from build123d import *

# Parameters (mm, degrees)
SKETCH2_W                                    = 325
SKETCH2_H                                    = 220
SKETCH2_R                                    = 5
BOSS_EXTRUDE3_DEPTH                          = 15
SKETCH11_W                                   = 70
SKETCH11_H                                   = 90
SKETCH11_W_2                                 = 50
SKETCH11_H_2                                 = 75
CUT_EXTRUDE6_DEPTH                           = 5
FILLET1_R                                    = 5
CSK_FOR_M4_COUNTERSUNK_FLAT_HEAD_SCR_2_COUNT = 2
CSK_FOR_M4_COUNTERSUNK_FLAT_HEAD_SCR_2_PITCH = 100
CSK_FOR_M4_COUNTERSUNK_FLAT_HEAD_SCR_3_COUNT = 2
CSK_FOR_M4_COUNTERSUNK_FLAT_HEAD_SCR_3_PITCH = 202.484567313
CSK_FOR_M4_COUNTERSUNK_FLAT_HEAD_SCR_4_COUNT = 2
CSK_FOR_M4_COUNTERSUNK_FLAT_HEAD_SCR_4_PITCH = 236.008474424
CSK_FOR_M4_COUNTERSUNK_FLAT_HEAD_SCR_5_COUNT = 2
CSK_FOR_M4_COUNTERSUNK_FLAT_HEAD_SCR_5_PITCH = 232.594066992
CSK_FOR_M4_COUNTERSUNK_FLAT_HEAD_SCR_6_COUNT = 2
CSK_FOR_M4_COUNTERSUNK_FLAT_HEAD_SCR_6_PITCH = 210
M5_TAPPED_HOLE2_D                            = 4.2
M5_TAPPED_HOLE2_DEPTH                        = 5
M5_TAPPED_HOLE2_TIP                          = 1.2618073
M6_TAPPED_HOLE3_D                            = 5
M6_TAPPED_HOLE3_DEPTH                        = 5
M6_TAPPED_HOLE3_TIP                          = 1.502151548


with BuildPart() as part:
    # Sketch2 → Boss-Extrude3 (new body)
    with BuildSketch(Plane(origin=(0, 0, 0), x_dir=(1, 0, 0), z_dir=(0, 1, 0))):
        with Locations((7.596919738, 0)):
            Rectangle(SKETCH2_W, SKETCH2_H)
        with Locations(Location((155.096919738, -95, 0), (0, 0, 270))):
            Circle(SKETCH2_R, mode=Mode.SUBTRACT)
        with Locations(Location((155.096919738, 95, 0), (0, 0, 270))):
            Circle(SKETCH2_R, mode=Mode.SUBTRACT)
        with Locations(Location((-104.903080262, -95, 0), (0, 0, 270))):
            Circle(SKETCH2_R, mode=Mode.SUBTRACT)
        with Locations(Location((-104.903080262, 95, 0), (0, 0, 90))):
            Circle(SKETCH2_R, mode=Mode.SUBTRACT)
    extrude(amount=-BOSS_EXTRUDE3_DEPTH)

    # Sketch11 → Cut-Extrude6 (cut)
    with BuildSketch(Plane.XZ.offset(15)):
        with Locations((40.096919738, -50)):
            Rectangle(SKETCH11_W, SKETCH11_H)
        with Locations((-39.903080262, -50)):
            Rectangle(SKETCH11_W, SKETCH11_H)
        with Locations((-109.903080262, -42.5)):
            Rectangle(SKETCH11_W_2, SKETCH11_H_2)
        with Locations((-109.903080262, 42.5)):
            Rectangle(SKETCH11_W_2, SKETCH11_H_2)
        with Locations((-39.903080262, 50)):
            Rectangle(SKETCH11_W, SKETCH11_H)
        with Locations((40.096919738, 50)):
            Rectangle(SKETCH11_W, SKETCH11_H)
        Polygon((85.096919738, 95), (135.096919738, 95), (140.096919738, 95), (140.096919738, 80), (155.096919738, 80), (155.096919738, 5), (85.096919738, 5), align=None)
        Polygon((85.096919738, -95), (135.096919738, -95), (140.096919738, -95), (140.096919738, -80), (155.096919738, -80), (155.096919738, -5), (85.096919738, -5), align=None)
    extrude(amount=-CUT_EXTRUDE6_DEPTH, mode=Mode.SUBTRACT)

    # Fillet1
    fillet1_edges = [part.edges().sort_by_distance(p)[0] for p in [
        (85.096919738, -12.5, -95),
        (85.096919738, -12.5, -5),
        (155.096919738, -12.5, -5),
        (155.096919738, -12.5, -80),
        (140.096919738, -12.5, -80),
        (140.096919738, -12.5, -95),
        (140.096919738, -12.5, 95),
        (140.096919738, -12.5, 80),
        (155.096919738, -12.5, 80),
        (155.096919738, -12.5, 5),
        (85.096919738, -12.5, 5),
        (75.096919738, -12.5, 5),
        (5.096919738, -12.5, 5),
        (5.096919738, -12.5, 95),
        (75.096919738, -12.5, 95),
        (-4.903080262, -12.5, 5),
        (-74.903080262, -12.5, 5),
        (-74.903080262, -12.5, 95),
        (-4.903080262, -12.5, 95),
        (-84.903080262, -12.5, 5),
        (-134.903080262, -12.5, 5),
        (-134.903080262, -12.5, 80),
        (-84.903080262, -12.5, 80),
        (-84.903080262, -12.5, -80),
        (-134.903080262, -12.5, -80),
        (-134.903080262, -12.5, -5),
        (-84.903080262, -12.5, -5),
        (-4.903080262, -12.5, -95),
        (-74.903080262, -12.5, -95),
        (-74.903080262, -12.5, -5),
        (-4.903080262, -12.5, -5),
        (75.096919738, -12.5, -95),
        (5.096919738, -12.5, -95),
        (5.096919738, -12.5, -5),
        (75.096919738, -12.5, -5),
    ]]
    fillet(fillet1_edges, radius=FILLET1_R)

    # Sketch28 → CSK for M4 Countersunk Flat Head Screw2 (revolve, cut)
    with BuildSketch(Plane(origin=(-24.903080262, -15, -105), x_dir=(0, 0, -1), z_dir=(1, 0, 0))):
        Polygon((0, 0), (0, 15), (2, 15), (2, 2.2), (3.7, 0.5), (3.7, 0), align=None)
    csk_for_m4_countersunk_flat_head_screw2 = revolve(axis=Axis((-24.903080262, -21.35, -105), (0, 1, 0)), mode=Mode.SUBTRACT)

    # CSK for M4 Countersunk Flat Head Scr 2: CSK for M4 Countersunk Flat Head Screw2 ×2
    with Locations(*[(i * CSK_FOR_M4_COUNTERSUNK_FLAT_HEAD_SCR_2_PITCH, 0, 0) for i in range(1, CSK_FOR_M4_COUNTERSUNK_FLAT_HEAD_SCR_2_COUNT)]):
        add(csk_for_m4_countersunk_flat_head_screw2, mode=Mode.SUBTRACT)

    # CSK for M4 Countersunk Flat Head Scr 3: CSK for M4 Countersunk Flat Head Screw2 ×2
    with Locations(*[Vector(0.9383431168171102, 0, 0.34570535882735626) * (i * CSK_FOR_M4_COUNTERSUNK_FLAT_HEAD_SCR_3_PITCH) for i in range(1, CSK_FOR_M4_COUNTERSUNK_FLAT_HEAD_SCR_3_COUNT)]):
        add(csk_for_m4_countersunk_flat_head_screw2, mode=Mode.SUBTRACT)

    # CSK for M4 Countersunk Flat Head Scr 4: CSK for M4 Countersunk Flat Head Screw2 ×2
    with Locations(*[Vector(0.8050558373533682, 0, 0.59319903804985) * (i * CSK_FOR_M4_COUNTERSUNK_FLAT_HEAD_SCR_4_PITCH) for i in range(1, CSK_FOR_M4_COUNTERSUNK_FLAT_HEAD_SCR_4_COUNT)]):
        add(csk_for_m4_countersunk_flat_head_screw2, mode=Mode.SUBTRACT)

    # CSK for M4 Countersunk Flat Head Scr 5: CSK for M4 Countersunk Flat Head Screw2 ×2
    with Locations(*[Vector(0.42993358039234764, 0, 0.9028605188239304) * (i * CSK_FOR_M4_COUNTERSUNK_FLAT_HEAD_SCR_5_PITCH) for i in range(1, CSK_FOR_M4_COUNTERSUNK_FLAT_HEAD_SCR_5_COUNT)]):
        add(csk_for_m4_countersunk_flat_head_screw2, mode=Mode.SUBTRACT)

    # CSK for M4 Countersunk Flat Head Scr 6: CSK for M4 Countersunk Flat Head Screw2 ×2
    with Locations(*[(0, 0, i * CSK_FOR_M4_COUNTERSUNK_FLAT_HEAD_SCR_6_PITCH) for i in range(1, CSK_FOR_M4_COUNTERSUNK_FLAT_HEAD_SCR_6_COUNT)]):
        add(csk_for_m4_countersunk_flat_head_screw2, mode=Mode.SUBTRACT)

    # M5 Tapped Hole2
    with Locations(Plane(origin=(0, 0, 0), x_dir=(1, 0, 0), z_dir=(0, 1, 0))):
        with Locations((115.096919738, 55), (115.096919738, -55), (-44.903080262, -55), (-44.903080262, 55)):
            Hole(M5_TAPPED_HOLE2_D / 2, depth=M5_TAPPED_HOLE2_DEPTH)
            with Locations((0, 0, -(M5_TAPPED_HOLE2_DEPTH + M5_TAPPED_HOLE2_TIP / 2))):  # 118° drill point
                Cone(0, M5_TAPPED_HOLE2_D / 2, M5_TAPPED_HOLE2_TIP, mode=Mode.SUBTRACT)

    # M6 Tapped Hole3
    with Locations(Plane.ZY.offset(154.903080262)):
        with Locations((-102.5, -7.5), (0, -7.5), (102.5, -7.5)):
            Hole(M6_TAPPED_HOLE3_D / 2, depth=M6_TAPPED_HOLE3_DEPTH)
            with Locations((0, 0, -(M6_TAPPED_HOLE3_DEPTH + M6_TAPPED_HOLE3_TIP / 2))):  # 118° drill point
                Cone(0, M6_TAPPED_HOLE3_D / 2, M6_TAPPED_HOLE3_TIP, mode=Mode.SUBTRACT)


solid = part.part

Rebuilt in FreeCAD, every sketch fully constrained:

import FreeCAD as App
import Part
import Sketcher
from FreeCAD import Vector
Q = App.Units.Quantity


def edges_at(feature, points):
    """Names of the edges that pass closest to the given points."""
    edges = feature.Shape.Edges
    near = lambda p: min(range(len(edges)), key=lambda i: edges[i].distToShape(Part.Vertex(*p))[0])
    return sorted({f"Edge{near(p) + 1}" for p in points})


def add_polygon(sketch, points):
    """Adds a closed chain of lines whose ends are joined by coincident constraints."""
    first, n = sketch.GeometryCount, len(points)
    for a, b in zip(points, points[1:] + points[:1]):
        sketch.addGeometry(Part.LineSegment(App.Vector(*a, 0), App.Vector(*b, 0)), False)
    for i in range(n):
        sketch.addConstraint(Sketcher.Constraint("Coincident", first + i, 2, first + (i + 1) % n, 1))

doc = App.newDocument("Part")
body = doc.addObject("PartDesign::Body", "Body")

# Sketch on XZ plane
sketch1 = body.newObject("Sketcher::SketchObject", "Sketch")
sketch1.AttachmentSupport = (doc.getObject("XZ_Plane"), [""])
sketch1.MapMode = "FlatFace"
add_polygon(sketch1, [(-155, -110), (-155, 110), (170, 110), (170, -110)])  # lines 0-3
sketch1.addGeometry(Part.Circle(Vector(-105, 95, 0), Vector(0, 0, 1), 5), False)  # 4
sketch1.addGeometry(Part.Circle(Vector(155, 95, 0), Vector(0, 0, 1), 5), False)  # 5
sketch1.addGeometry(Part.Circle(Vector(-105, -95, 0), Vector(0, 0, 1), 5), False)  # 6
sketch1.addGeometry(Part.Circle(Vector(155, -95, 0), Vector(0, 0, 1), 5), False)  # 7
sketch1.addConstraint(Sketcher.Constraint("Vertical", 0))
sketch1.addConstraint(Sketcher.Constraint("Horizontal", 1))
sketch1.addConstraint(Sketcher.Constraint("Vertical", 2))
sketch1.addConstraint(Sketcher.Constraint("Horizontal", 3))
sketch1.addConstraint(Sketcher.Constraint("Equal", 4, 5))
sketch1.addConstraint(Sketcher.Constraint("Equal", 5, 6))
sketch1.addConstraint(Sketcher.Constraint("Equal", 6, 7))
sketch1.addConstraint(Sketcher.Constraint("Symmetric", 4, 3, 6, 3, -1))
sketch1.addConstraint(Sketcher.Constraint("Symmetric", 5, 3, 7, 3, -1))
sketch1.addConstraint(Sketcher.Constraint("Horizontal", 4, 3, 5, 3))
sketch1.addConstraint(Sketcher.Constraint("Diameter", 4, 10.0))
sketch1.addConstraint(Sketcher.Constraint("DistanceX", 1, 1, 1, 2, 325.0))
sketch1.addConstraint(Sketcher.Constraint("DistanceY", 0, 1, 0, 2, 220.0))
sketch1.addConstraint(Sketcher.Constraint("DistanceY", -1, 1, 4, 3, 95.0))
sketch1.addConstraint(Sketcher.Constraint("DistanceY", -1, 1, 0, 2, 110.0))
sketch1.addConstraint(Sketcher.Constraint("DistanceX", 4, 3, 5, 3, 260.0))
sketch1.addConstraint(Sketcher.Constraint("DistanceX", 0, 2, 4, 3, 50.0))
sketch1.addConstraint(Sketcher.Constraint("DistanceX", 4, 3, -1, 1, 104.90308))
pad1 = body.newObject("PartDesign::Pad", "Pad")
pad1.Profile = sketch1
pad1.Length = 15

# Sketch on XZ plane
sketch2 = body.newObject("Sketcher::SketchObject", "Sketch001")
sketch2.AttachmentSupport = (doc.getObject("XZ_Plane"), [""])
sketch2.MapMode = "FlatFace"
sketch2.AttachmentOffset = App.Placement(Vector(0, 0, 15), App.Rotation())
add_polygon(sketch2, [(5, -5), (5, -95), (75, -95), (75, -5)])  # lines 0-3
add_polygon(sketch2, [(-75, -5), (-75, -95), (-5, -95), (-5, -5)])  # lines 4-7
add_polygon(sketch2, [(-135, -5), (-135, -80), (-85, -80), (-85, -5)])  # lines 8-11
add_polygon(sketch2, [(-135, 80), (-135, 5), (-85, 5), (-85, 80)])  # lines 12-15
add_polygon(sketch2, [(-75, 95), (-75, 5), (-5, 5), (-5, 95)])  # lines 16-19
add_polygon(sketch2, [(5, 95), (5, 5), (75, 5), (75, 95)])  # lines 20-23
add_polygon(sketch2, [(140, 95), (85, 95), (85, 5), (155, 5), (155, 80), (140, 80)])  # lines 24-29
add_polygon(sketch2, [(85, -95), (140, -95), (140, -80), (155, -80), (155, -5), (85, -5)])  # lines 30-35
sketch2.addConstraint(Sketcher.Constraint("Vertical", 0))
sketch2.addConstraint(Sketcher.Constraint("Horizontal", 1))
sketch2.addConstraint(Sketcher.Constraint("Vertical", 2))
sketch2.addConstraint(Sketcher.Constraint("Horizontal", 3))
sketch2.addConstraint(Sketcher.Constraint("Vertical", 4))
sketch2.addConstraint(Sketcher.Constraint("Horizontal", 5))
sketch2.addConstraint(Sketcher.Constraint("Vertical", 6))
sketch2.addConstraint(Sketcher.Constraint("Horizontal", 7))
sketch2.addConstraint(Sketcher.Constraint("Vertical", 8))
sketch2.addConstraint(Sketcher.Constraint("Horizontal", 9))
sketch2.addConstraint(Sketcher.Constraint("Vertical", 10))
sketch2.addConstraint(Sketcher.Constraint("Horizontal", 11))
sketch2.addConstraint(Sketcher.Constraint("Vertical", 12))
sketch2.addConstraint(Sketcher.Constraint("Horizontal", 13))
sketch2.addConstraint(Sketcher.Constraint("Vertical", 14))
sketch2.addConstraint(Sketcher.Constraint("Horizontal", 15))
sketch2.addConstraint(Sketcher.Constraint("Vertical", 16))
sketch2.addConstraint(Sketcher.Constraint("Horizontal", 17))
sketch2.addConstraint(Sketcher.Constraint("Vertical", 18))
sketch2.addConstraint(Sketcher.Constraint("Horizontal", 19))
sketch2.addConstraint(Sketcher.Constraint("Vertical", 20))
sketch2.addConstraint(Sketcher.Constraint("Horizontal", 21))
sketch2.addConstraint(Sketcher.Constraint("Vertical", 22))
sketch2.addConstraint(Sketcher.Constraint("Horizontal", 23))
sketch2.addConstraint(Sketcher.Constraint("Horizontal", 24))
sketch2.addConstraint(Sketcher.Constraint("Vertical", 25))
sketch2.addConstraint(Sketcher.Constraint("Horizontal", 26))
sketch2.addConstraint(Sketcher.Constraint("Vertical", 27))
sketch2.addConstraint(Sketcher.Constraint("Horizontal", 28))
sketch2.addConstraint(Sketcher.Constraint("Vertical", 29))
sketch2.addConstraint(Sketcher.Constraint("Horizontal", 30))
sketch2.addConstraint(Sketcher.Constraint("Vertical", 31))
sketch2.addConstraint(Sketcher.Constraint("Horizontal", 32))
sketch2.addConstraint(Sketcher.Constraint("Vertical", 33))
sketch2.addConstraint(Sketcher.Constraint("Horizontal", 34))
sketch2.addConstraint(Sketcher.Constraint("Vertical", 35))
sketch2.addConstraint(Sketcher.Constraint("Symmetric", 11, 2, 12, 2, -1))
sketch2.addConstraint(Sketcher.Constraint("Symmetric", 9, 2, 14, 2, -1))
sketch2.addConstraint(Sketcher.Constraint("Symmetric", 7, 2, 16, 2, -1))
sketch2.addConstraint(Sketcher.Constraint("Symmetric", 5, 2, 18, 2, -1))
sketch2.addConstraint(Sketcher.Constraint("Symmetric", 3, 2, 20, 2, -1))
sketch2.addConstraint(Sketcher.Constraint("Symmetric", 1, 2, 22, 2, -1))
sketch2.addConstraint(Sketcher.Constraint("Symmetric", 29, 2, 30, 2, -1))
sketch2.addConstraint(Sketcher.Constraint("Symmetric", 27, 2, 32, 2, -1))
sketch2.addConstraint(Sketcher.Constraint("Symmetric", 25, 2, 34, 2, -1))
sketch2.addConstraint(Sketcher.Constraint("Horizontal", 1, 2, 4, 2))
sketch2.addConstraint(Sketcher.Constraint("Horizontal", 3, 2, 6, 2))
sketch2.addConstraint(Sketcher.Constraint("Horizontal", 7, 2, 10, 2))
sketch2.addConstraint(Sketcher.Constraint("Horizontal", 23, 2, 24, 2))
sketch2.addConstraint(Sketcher.Constraint("Horizontal", 21, 2, 25, 2))
sketch2.addConstraint(Sketcher.Constraint("Horizontal", 15, 2, 27, 2))
sketch2.addConstraint(Sketcher.Constraint("Equal", 3, 5))
sketch2.addConstraint(Sketcher.Constraint("Equal", 23, 26))
sketch2.addConstraint(Sketcher.Constraint("Equal", 32, 29))
sketch2.addConstraint(Sketcher.Constraint("DistanceX", 1, 1, 1, 2, 70.0))
sketch2.addConstraint(Sketcher.Constraint("DistanceX", 9, 1, 9, 2, 50.0))
sketch2.addConstraint(Sketcher.Constraint("DistanceX", 24, 2, 24, 1, 55.0))
sketch2.addConstraint(Sketcher.Constraint("DistanceY", 0, 2, 0, 1, 90.0))
sketch2.addConstraint(Sketcher.Constraint("DistanceY", 0, 2, -1, 1, 95.0))
sketch2.addConstraint(Sketcher.Constraint("DistanceX", 4, 2, 0, 2, 80.0))
sketch2.addConstraint(Sketcher.Constraint("DistanceX", 8, 2, 4, 2, 60.0))
sketch2.addConstraint(Sketcher.Constraint("DistanceX", 22, 2, 24, 2, 10.0))
sketch2.addConstraint(Sketcher.Constraint("DistanceX", -1, 1, 0, 2, 5.09692))
pocket1 = body.newObject("PartDesign::Pocket", "Pocket")
pocket1.Profile = sketch2
pocket1.Length = 5
doc.recompute()

fillet = body.newObject("PartDesign::Fillet", "Fillet")
fillet.Base = (pocket1, edges_at(pocket1, [
    (85.097, -12.5, -95),
    (85.097, -12.5, -5),
    (155.097, -12.5, -5),
    (155.097, -12.5, -80),
    (140.097, -12.5, -80),
    (140.097, -12.5, -95),
    (140.097, -12.5, 95),
    (140.097, -12.5, 80),
    (155.097, -12.5, 80),
    (155.097, -12.5, 5),
    (85.097, -12.5, 5),
    (75.097, -12.5, 5),
    (5.097, -12.5, 5),
    (5.097, -12.5, 95),
    (75.097, -12.5, 95),
    (-4.903, -12.5, 5),
    (-74.903, -12.5, 5),
    (-74.903, -12.5, 95),
    (-4.903, -12.5, 95),
    (-84.903, -12.5, 5),
    (-134.903, -12.5, 5),
    (-134.903, -12.5, 80),
    (-84.903, -12.5, 80),
    (-84.903, -12.5, -80),
    (-134.903, -12.5, -80),
    (-134.903, -12.5, -5),
    (-84.903, -12.5, -5),
    (-4.903, -12.5, -95),
    (-74.903, -12.5, -95),
    (-74.903, -12.5, -5),
    (-4.903, -12.5, -5),
    (75.097, -12.5, -95),
    (5.097, -12.5, -95),
    (5.097, -12.5, -5),
    (75.097, -12.5, -5),
]))
fillet.Radius = 5

# Sketch on YZ plane
sketch3 = body.newObject("Sketcher::SketchObject", "Sketch002")
sketch3.AttachmentSupport = (doc.getObject("YZ_Plane"), [""])
sketch3.MapMode = "FlatFace"
sketch3.AttachmentOffset = App.Placement(Vector(0, 0, -24.90308), App.Rotation())
add_polygon(sketch3, [(0, -105), (-15, -105), (-15, -108.7), (-14.5, -108.7), (-12.8, -107), (0, -107)])  # lines 0-5
sketch3.addGeometry(Part.LineSegment(Vector(-15, -105, 0), Vector(0, -105, 0)), True)  # axis
sketch3.addConstraint(Sketcher.Constraint("Horizontal", 0))
sketch3.addConstraint(Sketcher.Constraint("Vertical", 1))
sketch3.addConstraint(Sketcher.Constraint("Horizontal", 2))
sketch3.addConstraint(Sketcher.Constraint("Horizontal", 4))
sketch3.addConstraint(Sketcher.Constraint("Vertical", 5))
sketch3.addConstraint(Sketcher.Constraint("Horizontal", 6))
sketch3.addConstraint(Sketcher.Constraint("Coincident", 6, 1, 0, 2))
sketch3.addConstraint(Sketcher.Constraint("PointOnObject", 4, 2, -2))
sketch3.addConstraint(Sketcher.Constraint("PointOnObject", 6, 2, -2))
sketch3.addConstraint(Sketcher.Constraint("DistanceX", 0, 2, 0, 1, 15.0))
sketch3.addConstraint(Sketcher.Constraint("DistanceY", 5, 1, 5, 2, 2.0))
sketch3.addConstraint(Sketcher.Constraint("Angle", 3, Q("45 deg")))
sketch3.addConstraint(Sketcher.Constraint("DistanceX", 2, 1, 2, 2, 0.5))
sketch3.addConstraint(Sketcher.Constraint("DistanceX", 4, 1, 4, 2, 12.8))
sketch3.addConstraint(Sketcher.Constraint("DistanceY", 0, 2, -1, 1, 105.0))
groove = body.newObject("PartDesign::Groove", "Groove")
groove.Profile = sketch3
groove.ReferenceAxis = (sketch3, ["Axis0"])
groove.Angle = 360
doc.recompute()

linearpattern = body.newObject("PartDesign::LinearPattern", "LinearPattern")
linearpattern.Originals = [groove]
linearpattern.Direction = (doc.getObject("X_Axis"), [""])
linearpattern.Mode = "offset"
linearpattern.Offset = 100
linearpattern.Occurrences = 2
body.Tip = linearpattern
doc.recompute()

datumline = body.newObject("PartDesign::Line", "DatumLine")
datumline.Placement = App.Placement(Vector(0, 0, 0), App.Rotation(Vector(0, 0, 1), Vector(0.938343117, 0, 0.345705359)))
linearpattern2 = body.newObject("PartDesign::LinearPattern", "LinearPattern001")
linearpattern2.Originals = [groove]
linearpattern2.Direction = (datumline, [""])
linearpattern2.Mode = "offset"
linearpattern2.Offset = 202.484567
linearpattern2.Occurrences = 2
body.Tip = linearpattern2
doc.recompute()

datumline2 = body.newObject("PartDesign::Line", "DatumLine001")
datumline2.Placement = App.Placement(Vector(0, 0, 0), App.Rotation(Vector(0, 0, 1), Vector(0.805055837, 0, 0.593199038)))
linearpattern3 = body.newObject("PartDesign::LinearPattern", "LinearPattern002")
linearpattern3.Originals = [groove]
linearpattern3.Direction = (datumline2, [""])
linearpattern3.Mode = "offset"
linearpattern3.Offset = 236.008474
linearpattern3.Occurrences = 2
body.Tip = linearpattern3
doc.recompute()

datumline3 = body.newObject("PartDesign::Line", "DatumLine002")
datumline3.Placement = App.Placement(Vector(0, 0, 0), App.Rotation(Vector(0, 0, 1), Vector(0.42993358, 0, 0.902860519)))
linearpattern4 = body.newObject("PartDesign::LinearPattern", "LinearPattern003")
linearpattern4.Originals = [groove]
linearpattern4.Direction = (datumline3, [""])
linearpattern4.Mode = "offset"
linearpattern4.Offset = 232.594067
linearpattern4.Occurrences = 2
body.Tip = linearpattern4
doc.recompute()

linearpattern5 = body.newObject("PartDesign::LinearPattern", "LinearPattern004")
linearpattern5.Originals = [groove]
linearpattern5.Direction = (doc.getObject("Z_Axis"), [""])
linearpattern5.Mode = "offset"
linearpattern5.Offset = 210
linearpattern5.Occurrences = 2
body.Tip = linearpattern5

# Sketch on XZ plane
sketch4 = body.newObject("Sketcher::SketchObject", "Sketch003")
sketch4.AttachmentSupport = (doc.getObject("XZ_Plane"), [""])
sketch4.MapMode = "FlatFace"
sketch4.addGeometry(Part.Circle(Vector(115.1, -55, 0), Vector(0, 0, 1), 2.1), False)
sketch4.addGeometry(Part.Circle(Vector(115.1, 55, 0), Vector(0, 0, 1), 2.1), False)
sketch4.addGeometry(Part.Circle(Vector(-44.9, 55, 0), Vector(0, 0, 1), 2.1), False)
sketch4.addGeometry(Part.Circle(Vector(-44.9, -55, 0), Vector(0, 0, 1), 2.1), False)
sketch4.addConstraint(Sketcher.Constraint("Equal", 0, 1))
sketch4.addConstraint(Sketcher.Constraint("Equal", 1, 2))
sketch4.addConstraint(Sketcher.Constraint("Equal", 2, 3))
sketch4.addConstraint(Sketcher.Constraint("Symmetric", 0, 3, 1, 3, -1))
sketch4.addConstraint(Sketcher.Constraint("Symmetric", 2, 3, 3, 3, -1))
sketch4.addConstraint(Sketcher.Constraint("Horizontal", 1, 3, 2, 3))
sketch4.addConstraint(Sketcher.Constraint("Diameter", 0, 4.2))
sketch4.addConstraint(Sketcher.Constraint("DistanceY", 0, 3, -1, 1, 55.0))
sketch4.addConstraint(Sketcher.Constraint("DistanceX", 2, 3, 1, 3, 160.0))
sketch4.addConstraint(Sketcher.Constraint("DistanceX", -1, 1, 0, 3, 115.09692))
doc.recompute()
hole = body.newObject("PartDesign::Hole", "Hole")
hole.Profile = sketch4
hole.ThreadType = "None"
hole.Diameter = 4.2
hole.DepthType = "Dimension"
hole.Depth = 5
hole.DrillPoint = "Angled"
hole.DrillPointAngle = 118
hole.Reversed = True

# Sketch on YZ plane
sketch5 = body.newObject("Sketcher::SketchObject", "Sketch004")
sketch5.AttachmentSupport = (doc.getObject("YZ_Plane"), [""])
sketch5.MapMode = "FlatFace"
sketch5.AttachmentOffset = App.Placement(Vector(0, 0, -154.90308), App.Rotation())
sketch5.addGeometry(Part.Circle(Vector(-7.5, -102.5, 0), Vector(0, 0, 1), 2.5), False)
sketch5.addGeometry(Part.Circle(Vector(-7.5, 0, 0), Vector(0, 0, 1), 2.5), False)
sketch5.addGeometry(Part.Circle(Vector(-7.5, 102.5, 0), Vector(0, 0, 1), 2.5), False)
sketch5.addConstraint(Sketcher.Constraint("Equal", 0, 1))
sketch5.addConstraint(Sketcher.Constraint("Equal", 1, 2))
sketch5.addConstraint(Sketcher.Constraint("Symmetric", 0, 3, 2, 3, -1))
sketch5.addConstraint(Sketcher.Constraint("PointOnObject", 1, 3, -1))
sketch5.addConstraint(Sketcher.Constraint("Vertical", 0, 3, 1, 3))
sketch5.addConstraint(Sketcher.Constraint("Diameter", 0, 5.0))
sketch5.addConstraint(Sketcher.Constraint("DistanceY", 0, 3, 2, 3, 205.0))
sketch5.addConstraint(Sketcher.Constraint("DistanceX", 0, 3, -1, 1, 7.5))
doc.recompute()
hole2 = body.newObject("PartDesign::Hole", "Hole001")
hole2.Profile = sketch5
hole2.ThreadType = "None"
hole2.Diameter = 5
hole2.DepthType = "Dimension"
hole2.Depth = 5
hole2.DrillPoint = "Angled"
hole2.DrillPointAngle = 118
hole2.Reversed = True

doc.recompute()
